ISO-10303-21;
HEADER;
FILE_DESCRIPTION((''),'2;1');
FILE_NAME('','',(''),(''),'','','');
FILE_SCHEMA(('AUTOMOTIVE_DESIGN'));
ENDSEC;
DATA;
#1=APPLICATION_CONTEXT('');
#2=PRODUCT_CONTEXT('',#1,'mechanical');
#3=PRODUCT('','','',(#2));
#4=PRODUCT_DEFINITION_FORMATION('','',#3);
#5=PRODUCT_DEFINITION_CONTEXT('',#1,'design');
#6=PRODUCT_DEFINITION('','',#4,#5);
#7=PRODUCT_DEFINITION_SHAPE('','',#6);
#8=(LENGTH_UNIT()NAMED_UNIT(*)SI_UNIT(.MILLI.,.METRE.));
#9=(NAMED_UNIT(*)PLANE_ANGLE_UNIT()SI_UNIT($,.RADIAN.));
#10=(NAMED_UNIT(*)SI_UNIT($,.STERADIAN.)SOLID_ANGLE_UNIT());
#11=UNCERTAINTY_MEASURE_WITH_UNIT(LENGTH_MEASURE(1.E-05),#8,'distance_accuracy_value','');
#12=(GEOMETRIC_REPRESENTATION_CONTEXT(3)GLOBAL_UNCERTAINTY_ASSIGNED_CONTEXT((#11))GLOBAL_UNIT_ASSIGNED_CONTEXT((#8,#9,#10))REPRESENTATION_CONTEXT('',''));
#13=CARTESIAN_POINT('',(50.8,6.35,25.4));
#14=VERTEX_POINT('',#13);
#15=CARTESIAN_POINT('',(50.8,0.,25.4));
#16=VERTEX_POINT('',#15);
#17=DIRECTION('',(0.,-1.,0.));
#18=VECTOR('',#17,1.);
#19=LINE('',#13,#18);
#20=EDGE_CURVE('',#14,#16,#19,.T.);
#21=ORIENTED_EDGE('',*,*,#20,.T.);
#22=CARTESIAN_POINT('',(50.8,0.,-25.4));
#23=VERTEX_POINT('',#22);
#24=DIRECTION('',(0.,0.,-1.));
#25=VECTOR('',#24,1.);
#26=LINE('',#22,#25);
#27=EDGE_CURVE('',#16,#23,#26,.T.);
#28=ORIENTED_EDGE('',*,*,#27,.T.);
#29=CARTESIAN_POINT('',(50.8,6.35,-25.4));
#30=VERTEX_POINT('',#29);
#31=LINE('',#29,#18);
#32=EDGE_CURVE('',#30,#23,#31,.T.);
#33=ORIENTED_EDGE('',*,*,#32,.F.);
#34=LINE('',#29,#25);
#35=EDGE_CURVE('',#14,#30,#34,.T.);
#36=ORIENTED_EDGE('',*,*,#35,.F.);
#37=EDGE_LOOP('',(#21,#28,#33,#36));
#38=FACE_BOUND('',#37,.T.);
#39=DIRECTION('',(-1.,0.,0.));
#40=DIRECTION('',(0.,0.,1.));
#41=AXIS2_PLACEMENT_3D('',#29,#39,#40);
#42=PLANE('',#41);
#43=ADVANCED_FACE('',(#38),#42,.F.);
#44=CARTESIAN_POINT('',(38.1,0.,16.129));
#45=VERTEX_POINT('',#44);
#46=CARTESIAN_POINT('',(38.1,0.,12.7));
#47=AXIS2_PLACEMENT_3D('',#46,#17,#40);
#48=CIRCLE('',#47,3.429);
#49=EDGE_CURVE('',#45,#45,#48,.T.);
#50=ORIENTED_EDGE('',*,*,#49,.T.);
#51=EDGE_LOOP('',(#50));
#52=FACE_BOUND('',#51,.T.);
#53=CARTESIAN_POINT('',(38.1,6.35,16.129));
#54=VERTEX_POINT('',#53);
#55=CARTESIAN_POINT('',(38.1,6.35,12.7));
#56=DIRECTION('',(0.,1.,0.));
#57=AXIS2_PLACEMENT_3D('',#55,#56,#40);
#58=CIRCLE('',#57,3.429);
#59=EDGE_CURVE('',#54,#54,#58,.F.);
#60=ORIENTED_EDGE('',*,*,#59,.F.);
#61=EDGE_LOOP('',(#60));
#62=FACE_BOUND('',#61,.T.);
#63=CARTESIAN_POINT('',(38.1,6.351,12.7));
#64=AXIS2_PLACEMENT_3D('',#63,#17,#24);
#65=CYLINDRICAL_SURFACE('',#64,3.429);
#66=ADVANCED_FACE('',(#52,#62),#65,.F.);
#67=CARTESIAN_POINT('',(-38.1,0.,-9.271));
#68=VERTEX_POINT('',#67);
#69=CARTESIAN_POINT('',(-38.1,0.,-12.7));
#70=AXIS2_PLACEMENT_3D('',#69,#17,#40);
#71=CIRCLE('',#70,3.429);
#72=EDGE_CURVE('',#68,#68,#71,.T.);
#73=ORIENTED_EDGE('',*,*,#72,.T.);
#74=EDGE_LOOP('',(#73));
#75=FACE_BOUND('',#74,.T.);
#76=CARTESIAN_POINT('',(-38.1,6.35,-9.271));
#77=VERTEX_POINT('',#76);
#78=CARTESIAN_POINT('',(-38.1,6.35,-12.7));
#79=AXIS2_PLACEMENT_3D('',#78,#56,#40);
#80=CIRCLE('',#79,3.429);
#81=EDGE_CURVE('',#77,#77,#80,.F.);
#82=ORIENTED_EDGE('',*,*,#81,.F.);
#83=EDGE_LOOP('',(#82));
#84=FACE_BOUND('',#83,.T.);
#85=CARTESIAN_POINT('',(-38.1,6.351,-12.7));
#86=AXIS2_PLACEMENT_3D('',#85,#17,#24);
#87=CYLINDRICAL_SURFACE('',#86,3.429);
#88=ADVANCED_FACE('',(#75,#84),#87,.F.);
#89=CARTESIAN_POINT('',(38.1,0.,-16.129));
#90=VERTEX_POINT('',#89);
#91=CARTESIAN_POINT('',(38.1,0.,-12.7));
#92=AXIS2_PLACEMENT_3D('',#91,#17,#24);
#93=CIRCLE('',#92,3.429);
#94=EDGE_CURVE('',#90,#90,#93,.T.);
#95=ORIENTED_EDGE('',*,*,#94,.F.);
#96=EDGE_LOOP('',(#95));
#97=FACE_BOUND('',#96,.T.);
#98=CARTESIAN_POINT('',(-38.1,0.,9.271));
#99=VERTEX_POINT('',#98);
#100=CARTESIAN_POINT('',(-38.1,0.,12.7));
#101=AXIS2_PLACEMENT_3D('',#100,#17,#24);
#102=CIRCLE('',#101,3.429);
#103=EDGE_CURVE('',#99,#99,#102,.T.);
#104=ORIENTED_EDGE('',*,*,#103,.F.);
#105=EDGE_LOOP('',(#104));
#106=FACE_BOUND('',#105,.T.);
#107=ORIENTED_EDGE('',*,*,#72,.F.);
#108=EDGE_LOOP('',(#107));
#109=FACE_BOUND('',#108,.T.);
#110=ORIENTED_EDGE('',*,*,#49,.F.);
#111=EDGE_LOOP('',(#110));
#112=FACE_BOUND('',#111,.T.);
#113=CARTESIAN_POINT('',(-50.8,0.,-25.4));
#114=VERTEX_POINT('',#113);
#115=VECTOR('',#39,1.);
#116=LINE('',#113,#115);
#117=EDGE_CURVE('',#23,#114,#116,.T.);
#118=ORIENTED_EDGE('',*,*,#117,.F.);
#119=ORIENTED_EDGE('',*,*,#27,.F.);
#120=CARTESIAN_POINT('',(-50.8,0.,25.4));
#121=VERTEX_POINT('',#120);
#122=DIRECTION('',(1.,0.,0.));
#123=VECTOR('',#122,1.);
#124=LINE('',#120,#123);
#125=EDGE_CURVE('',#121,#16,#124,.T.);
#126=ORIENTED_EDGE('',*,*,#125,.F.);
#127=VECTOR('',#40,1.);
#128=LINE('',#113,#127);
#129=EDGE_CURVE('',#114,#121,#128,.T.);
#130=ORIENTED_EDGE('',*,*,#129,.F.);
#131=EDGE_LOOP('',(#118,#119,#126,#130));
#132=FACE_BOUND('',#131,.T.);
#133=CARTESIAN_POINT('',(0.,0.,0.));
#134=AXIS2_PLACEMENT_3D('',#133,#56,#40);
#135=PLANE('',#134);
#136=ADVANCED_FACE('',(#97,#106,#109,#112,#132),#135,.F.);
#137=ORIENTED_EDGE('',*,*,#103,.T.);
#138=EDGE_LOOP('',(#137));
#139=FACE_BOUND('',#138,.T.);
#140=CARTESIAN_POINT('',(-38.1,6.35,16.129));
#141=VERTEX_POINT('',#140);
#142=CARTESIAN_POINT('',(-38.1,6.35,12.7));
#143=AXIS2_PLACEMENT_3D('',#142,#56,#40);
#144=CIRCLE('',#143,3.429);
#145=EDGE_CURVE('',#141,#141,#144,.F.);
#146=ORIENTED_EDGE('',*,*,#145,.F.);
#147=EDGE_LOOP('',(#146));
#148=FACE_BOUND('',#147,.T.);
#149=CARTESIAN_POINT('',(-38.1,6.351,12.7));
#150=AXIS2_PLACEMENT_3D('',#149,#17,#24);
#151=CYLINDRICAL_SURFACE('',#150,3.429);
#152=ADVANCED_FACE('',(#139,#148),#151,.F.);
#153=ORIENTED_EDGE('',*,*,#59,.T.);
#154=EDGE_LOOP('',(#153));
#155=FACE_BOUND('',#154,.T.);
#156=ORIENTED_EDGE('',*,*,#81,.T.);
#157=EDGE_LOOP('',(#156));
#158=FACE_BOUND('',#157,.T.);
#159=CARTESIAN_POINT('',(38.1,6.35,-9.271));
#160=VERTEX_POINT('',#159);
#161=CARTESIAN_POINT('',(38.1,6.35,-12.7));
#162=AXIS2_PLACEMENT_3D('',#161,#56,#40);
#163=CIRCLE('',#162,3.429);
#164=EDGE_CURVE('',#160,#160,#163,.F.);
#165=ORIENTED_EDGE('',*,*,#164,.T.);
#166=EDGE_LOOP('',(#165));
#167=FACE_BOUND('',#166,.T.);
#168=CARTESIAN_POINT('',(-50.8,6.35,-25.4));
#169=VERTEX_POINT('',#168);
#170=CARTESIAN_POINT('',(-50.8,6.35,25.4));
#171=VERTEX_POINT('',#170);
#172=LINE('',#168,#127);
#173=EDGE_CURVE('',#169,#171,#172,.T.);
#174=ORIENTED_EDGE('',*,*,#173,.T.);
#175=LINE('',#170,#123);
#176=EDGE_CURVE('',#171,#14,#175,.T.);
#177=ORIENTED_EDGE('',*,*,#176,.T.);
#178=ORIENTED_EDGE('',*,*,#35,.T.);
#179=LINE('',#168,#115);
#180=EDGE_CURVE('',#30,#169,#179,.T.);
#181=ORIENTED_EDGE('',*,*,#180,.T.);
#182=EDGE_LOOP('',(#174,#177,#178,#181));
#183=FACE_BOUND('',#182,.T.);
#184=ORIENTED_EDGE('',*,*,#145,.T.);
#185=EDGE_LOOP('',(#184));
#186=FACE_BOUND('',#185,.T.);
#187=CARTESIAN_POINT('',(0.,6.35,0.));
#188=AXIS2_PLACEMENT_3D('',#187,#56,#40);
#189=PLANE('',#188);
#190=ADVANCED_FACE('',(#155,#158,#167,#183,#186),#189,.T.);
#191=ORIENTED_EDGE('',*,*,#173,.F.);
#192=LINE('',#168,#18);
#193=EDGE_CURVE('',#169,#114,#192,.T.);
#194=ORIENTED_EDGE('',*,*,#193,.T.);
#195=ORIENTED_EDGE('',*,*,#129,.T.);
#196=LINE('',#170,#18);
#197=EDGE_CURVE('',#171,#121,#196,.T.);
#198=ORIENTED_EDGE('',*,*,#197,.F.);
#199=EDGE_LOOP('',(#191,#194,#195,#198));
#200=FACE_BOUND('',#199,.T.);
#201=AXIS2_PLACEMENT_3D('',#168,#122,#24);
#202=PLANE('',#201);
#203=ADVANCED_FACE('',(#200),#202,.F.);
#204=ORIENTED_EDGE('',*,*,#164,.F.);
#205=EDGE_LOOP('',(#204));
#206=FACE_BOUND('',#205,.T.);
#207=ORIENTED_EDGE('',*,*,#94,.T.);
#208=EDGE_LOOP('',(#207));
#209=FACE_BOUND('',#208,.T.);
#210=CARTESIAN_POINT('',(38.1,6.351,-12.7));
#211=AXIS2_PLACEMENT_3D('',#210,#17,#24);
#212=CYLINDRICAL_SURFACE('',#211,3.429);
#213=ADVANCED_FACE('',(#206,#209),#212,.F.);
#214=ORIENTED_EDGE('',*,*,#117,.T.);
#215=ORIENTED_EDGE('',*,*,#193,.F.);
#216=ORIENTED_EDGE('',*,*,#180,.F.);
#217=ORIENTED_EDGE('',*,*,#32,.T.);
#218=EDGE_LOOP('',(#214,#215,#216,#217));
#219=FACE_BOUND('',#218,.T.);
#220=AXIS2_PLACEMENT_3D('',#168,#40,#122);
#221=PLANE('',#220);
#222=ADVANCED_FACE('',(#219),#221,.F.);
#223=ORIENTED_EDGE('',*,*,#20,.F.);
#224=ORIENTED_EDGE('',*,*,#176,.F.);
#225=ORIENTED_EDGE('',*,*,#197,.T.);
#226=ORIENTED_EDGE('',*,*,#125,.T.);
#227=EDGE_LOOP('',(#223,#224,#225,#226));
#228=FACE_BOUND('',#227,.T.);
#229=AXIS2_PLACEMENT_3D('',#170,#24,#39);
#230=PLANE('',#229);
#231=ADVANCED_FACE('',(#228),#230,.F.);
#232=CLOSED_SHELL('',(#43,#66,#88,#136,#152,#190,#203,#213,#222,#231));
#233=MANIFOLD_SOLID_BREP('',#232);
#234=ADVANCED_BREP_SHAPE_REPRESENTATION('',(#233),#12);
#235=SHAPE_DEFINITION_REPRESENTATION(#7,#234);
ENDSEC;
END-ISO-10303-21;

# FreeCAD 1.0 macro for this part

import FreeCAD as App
import Part
import Sketcher
Q = App.Units.Quantity


def add_polygon(sketch, points):
    """Adds a closed chain of lines whose ends are joined by coincident constraints."""
    first, n = sketch.GeometryCount, len(points)
    for a, b in zip(points, points[1:] + points[:1]):
        sketch.addGeometry(Part.LineSegment(App.Vector(*a, 0), App.Vector(*b, 0)), False)
    for i in range(n):
        sketch.addConstraint(Sketcher.Constraint("Coincident", first + i, 2, first + (i + 1) % n, 1))

doc = App.newDocument("Part")
params = doc.addObject("Spreadsheet::Sheet", "Params")
for row, (alias, value) in enumerate([
    ("sketch1_width", "4 in"),
    ("sketch1_height", "2 in"),
    ("pad1_length", "0.25 in"),
    ("sketch2_diameter", "0.27 in"),
    ("sketch3_diameter", "0.27 in"),
    ("sketch4_diameter", "0.27 in"),
    ("sketch5_diameter", "0.27 in"),
], start=1):
    params.set(f"A{row}", alias)
    params.set(f"B{row}", "=" + value)
    params.setAlias(f"B{row}", alias)

body = doc.addObject("PartDesign::Body", "Body")

sketch1 = doc.addObject("Sketcher::SketchObject", "Sketch")
body.addObject(sketch1)
sketch1.AttachmentSupport = (doc.XZ_Plane, [""])
sketch1.MapMode = "FlatFace"
add_polygon(sketch1, [(-51, -25), (-51, 25), (51, 25), (51, -25)])
sketch1.addConstraint([
    Sketcher.Constraint("Vertical", 0),
    Sketcher.Constraint("Horizontal", 1),
    Sketcher.Constraint("Vertical", 2),
    Sketcher.Constraint("Horizontal", 3),
    Sketcher.Constraint("Symmetric", 0, 2, 2, 2, -1, 1),
    Sketcher.Constraint("DistanceX", 1, 1, 1, 2, Q("4 in")),
    Sketcher.Constraint("DistanceY", 0, 1, 0, 2, Q("2 in")),
])
sketch1.setExpression("Constraints[9]", "Params.sketch1_width")
sketch1.setExpression("Constraints[10]", "Params.sketch1_height")
pad1 = doc.addObject("PartDesign::Pad", "Pad")
body.addObject(pad1)
pad1.Profile = sketch1
pad1.setExpression("Length", "Params.pad1_length")
pad1.Reversed = True

sketch2 = doc.addObject("Sketcher::SketchObject", "Sketch001")
body.addObject(sketch2)
sketch2.AttachmentSupport = (doc.XZ_Plane, [""])
sketch2.MapMode = "FlatFace"
sketch2.addGeometry(Part.Circle(App.Vector(-38.1, 12.7, 0), App.Vector(0, 0, 1), 3.4), False)
sketch2.addConstraint([
    Sketcher.Constraint("Diameter", 0, Q("0.27 in")),
    Sketcher.Constraint("DistanceX", 0, 3, -1, 1, Q("1.5 in")),
    Sketcher.Constraint("DistanceY", -1, 1, 0, 3, Q("0.5 in")),
])
sketch2.setExpression("Constraints[0]", "Params.sketch2_diameter")
pocket1 = doc.addObject("PartDesign::Pocket", "Pocket")
body.addObject(pocket1)
pocket1.Profile = sketch2
pocket1.Type = "UpToFirst"

sketch3 = doc.addObject("Sketcher::SketchObject", "Sketch002")
body.addObject(sketch3)
sketch3.AttachmentSupport = (doc.XZ_Plane, [""])
sketch3.MapMode = "FlatFace"
sketch3.addGeometry(Part.Circle(App.Vector(-38.1, -12.7, 0), App.Vector(0, 0, 1), 3.4), False)
sketch3.addConstraint([
    Sketcher.Constraint("Diameter", 0, Q("0.27 in")),
    Sketcher.Constraint("DistanceX", 0, 3, -1, 1, Q("1.5 in")),
    Sketcher.Constraint("DistanceY", 0, 3, -1, 1, Q("0.5 in")),
])
sketch3.setExpression("Constraints[0]", "Params.sketch3_diameter")
pocket2 = doc.addObject("PartDesign::Pocket", "Pocket001")
body.addObject(pocket2)
pocket2.Profile = sketch3
pocket2.Type = "UpToFirst"

sketch4 = doc.addObject("Sketcher::SketchObject", "Sketch003")
body.addObject(sketch4)
sketch4.AttachmentSupport = (doc.XZ_Plane, [""])
sketch4.MapMode = "FlatFace"
sketch4.addGeometry(Part.Circle(App.Vector(38.1, 12.7, 0), App.Vector(0, 0, 1), 3.4), False)
sketch4.addConstraint([
    Sketcher.Constraint("Diameter", 0, Q("0.27 in")),
    Sketcher.Constraint("DistanceX", -1, 1, 0, 3, Q("1.5 in")),
    Sketcher.Constraint("DistanceY", -1, 1, 0, 3, Q("0.5 in")),
])
sketch4.setExpression("Constraints[0]", "Params.sketch4_diameter")
pocket3 = doc.addObject("PartDesign::Pocket", "Pocket002")
body.addObject(pocket3)
pocket3.Profile = sketch4
pocket3.Type = "UpToFirst"

sketch5 = doc.addObject("Sketcher::SketchObject", "Sketch004")
body.addObject(sketch5)
sketch5.AttachmentSupport = (doc.XZ_Plane, [""])
sketch5.MapMode = "FlatFace"
sketch5.addGeometry(Part.Circle(App.Vector(38.1, -12.7, 0), App.Vector(0, 0, 1), 3.4), False)
sketch5.addConstraint([
    Sketcher.Constraint("Diameter", 0, Q("0.27 in")),
    Sketcher.Constraint("DistanceX", -1, 1, 0, 3, Q("1.5 in")),
    Sketcher.Constraint("DistanceY", 0, 3, -1, 1, Q("0.5 in")),
])
sketch5.setExpression("Constraints[0]", "Params.sketch5_diameter")
pocket4 = doc.addObject("PartDesign::Pocket", "Pocket003")
body.addObject(pocket4)
pocket4.Profile = sketch5
pocket4.Type = "UpToFirst"

doc.recompute()
